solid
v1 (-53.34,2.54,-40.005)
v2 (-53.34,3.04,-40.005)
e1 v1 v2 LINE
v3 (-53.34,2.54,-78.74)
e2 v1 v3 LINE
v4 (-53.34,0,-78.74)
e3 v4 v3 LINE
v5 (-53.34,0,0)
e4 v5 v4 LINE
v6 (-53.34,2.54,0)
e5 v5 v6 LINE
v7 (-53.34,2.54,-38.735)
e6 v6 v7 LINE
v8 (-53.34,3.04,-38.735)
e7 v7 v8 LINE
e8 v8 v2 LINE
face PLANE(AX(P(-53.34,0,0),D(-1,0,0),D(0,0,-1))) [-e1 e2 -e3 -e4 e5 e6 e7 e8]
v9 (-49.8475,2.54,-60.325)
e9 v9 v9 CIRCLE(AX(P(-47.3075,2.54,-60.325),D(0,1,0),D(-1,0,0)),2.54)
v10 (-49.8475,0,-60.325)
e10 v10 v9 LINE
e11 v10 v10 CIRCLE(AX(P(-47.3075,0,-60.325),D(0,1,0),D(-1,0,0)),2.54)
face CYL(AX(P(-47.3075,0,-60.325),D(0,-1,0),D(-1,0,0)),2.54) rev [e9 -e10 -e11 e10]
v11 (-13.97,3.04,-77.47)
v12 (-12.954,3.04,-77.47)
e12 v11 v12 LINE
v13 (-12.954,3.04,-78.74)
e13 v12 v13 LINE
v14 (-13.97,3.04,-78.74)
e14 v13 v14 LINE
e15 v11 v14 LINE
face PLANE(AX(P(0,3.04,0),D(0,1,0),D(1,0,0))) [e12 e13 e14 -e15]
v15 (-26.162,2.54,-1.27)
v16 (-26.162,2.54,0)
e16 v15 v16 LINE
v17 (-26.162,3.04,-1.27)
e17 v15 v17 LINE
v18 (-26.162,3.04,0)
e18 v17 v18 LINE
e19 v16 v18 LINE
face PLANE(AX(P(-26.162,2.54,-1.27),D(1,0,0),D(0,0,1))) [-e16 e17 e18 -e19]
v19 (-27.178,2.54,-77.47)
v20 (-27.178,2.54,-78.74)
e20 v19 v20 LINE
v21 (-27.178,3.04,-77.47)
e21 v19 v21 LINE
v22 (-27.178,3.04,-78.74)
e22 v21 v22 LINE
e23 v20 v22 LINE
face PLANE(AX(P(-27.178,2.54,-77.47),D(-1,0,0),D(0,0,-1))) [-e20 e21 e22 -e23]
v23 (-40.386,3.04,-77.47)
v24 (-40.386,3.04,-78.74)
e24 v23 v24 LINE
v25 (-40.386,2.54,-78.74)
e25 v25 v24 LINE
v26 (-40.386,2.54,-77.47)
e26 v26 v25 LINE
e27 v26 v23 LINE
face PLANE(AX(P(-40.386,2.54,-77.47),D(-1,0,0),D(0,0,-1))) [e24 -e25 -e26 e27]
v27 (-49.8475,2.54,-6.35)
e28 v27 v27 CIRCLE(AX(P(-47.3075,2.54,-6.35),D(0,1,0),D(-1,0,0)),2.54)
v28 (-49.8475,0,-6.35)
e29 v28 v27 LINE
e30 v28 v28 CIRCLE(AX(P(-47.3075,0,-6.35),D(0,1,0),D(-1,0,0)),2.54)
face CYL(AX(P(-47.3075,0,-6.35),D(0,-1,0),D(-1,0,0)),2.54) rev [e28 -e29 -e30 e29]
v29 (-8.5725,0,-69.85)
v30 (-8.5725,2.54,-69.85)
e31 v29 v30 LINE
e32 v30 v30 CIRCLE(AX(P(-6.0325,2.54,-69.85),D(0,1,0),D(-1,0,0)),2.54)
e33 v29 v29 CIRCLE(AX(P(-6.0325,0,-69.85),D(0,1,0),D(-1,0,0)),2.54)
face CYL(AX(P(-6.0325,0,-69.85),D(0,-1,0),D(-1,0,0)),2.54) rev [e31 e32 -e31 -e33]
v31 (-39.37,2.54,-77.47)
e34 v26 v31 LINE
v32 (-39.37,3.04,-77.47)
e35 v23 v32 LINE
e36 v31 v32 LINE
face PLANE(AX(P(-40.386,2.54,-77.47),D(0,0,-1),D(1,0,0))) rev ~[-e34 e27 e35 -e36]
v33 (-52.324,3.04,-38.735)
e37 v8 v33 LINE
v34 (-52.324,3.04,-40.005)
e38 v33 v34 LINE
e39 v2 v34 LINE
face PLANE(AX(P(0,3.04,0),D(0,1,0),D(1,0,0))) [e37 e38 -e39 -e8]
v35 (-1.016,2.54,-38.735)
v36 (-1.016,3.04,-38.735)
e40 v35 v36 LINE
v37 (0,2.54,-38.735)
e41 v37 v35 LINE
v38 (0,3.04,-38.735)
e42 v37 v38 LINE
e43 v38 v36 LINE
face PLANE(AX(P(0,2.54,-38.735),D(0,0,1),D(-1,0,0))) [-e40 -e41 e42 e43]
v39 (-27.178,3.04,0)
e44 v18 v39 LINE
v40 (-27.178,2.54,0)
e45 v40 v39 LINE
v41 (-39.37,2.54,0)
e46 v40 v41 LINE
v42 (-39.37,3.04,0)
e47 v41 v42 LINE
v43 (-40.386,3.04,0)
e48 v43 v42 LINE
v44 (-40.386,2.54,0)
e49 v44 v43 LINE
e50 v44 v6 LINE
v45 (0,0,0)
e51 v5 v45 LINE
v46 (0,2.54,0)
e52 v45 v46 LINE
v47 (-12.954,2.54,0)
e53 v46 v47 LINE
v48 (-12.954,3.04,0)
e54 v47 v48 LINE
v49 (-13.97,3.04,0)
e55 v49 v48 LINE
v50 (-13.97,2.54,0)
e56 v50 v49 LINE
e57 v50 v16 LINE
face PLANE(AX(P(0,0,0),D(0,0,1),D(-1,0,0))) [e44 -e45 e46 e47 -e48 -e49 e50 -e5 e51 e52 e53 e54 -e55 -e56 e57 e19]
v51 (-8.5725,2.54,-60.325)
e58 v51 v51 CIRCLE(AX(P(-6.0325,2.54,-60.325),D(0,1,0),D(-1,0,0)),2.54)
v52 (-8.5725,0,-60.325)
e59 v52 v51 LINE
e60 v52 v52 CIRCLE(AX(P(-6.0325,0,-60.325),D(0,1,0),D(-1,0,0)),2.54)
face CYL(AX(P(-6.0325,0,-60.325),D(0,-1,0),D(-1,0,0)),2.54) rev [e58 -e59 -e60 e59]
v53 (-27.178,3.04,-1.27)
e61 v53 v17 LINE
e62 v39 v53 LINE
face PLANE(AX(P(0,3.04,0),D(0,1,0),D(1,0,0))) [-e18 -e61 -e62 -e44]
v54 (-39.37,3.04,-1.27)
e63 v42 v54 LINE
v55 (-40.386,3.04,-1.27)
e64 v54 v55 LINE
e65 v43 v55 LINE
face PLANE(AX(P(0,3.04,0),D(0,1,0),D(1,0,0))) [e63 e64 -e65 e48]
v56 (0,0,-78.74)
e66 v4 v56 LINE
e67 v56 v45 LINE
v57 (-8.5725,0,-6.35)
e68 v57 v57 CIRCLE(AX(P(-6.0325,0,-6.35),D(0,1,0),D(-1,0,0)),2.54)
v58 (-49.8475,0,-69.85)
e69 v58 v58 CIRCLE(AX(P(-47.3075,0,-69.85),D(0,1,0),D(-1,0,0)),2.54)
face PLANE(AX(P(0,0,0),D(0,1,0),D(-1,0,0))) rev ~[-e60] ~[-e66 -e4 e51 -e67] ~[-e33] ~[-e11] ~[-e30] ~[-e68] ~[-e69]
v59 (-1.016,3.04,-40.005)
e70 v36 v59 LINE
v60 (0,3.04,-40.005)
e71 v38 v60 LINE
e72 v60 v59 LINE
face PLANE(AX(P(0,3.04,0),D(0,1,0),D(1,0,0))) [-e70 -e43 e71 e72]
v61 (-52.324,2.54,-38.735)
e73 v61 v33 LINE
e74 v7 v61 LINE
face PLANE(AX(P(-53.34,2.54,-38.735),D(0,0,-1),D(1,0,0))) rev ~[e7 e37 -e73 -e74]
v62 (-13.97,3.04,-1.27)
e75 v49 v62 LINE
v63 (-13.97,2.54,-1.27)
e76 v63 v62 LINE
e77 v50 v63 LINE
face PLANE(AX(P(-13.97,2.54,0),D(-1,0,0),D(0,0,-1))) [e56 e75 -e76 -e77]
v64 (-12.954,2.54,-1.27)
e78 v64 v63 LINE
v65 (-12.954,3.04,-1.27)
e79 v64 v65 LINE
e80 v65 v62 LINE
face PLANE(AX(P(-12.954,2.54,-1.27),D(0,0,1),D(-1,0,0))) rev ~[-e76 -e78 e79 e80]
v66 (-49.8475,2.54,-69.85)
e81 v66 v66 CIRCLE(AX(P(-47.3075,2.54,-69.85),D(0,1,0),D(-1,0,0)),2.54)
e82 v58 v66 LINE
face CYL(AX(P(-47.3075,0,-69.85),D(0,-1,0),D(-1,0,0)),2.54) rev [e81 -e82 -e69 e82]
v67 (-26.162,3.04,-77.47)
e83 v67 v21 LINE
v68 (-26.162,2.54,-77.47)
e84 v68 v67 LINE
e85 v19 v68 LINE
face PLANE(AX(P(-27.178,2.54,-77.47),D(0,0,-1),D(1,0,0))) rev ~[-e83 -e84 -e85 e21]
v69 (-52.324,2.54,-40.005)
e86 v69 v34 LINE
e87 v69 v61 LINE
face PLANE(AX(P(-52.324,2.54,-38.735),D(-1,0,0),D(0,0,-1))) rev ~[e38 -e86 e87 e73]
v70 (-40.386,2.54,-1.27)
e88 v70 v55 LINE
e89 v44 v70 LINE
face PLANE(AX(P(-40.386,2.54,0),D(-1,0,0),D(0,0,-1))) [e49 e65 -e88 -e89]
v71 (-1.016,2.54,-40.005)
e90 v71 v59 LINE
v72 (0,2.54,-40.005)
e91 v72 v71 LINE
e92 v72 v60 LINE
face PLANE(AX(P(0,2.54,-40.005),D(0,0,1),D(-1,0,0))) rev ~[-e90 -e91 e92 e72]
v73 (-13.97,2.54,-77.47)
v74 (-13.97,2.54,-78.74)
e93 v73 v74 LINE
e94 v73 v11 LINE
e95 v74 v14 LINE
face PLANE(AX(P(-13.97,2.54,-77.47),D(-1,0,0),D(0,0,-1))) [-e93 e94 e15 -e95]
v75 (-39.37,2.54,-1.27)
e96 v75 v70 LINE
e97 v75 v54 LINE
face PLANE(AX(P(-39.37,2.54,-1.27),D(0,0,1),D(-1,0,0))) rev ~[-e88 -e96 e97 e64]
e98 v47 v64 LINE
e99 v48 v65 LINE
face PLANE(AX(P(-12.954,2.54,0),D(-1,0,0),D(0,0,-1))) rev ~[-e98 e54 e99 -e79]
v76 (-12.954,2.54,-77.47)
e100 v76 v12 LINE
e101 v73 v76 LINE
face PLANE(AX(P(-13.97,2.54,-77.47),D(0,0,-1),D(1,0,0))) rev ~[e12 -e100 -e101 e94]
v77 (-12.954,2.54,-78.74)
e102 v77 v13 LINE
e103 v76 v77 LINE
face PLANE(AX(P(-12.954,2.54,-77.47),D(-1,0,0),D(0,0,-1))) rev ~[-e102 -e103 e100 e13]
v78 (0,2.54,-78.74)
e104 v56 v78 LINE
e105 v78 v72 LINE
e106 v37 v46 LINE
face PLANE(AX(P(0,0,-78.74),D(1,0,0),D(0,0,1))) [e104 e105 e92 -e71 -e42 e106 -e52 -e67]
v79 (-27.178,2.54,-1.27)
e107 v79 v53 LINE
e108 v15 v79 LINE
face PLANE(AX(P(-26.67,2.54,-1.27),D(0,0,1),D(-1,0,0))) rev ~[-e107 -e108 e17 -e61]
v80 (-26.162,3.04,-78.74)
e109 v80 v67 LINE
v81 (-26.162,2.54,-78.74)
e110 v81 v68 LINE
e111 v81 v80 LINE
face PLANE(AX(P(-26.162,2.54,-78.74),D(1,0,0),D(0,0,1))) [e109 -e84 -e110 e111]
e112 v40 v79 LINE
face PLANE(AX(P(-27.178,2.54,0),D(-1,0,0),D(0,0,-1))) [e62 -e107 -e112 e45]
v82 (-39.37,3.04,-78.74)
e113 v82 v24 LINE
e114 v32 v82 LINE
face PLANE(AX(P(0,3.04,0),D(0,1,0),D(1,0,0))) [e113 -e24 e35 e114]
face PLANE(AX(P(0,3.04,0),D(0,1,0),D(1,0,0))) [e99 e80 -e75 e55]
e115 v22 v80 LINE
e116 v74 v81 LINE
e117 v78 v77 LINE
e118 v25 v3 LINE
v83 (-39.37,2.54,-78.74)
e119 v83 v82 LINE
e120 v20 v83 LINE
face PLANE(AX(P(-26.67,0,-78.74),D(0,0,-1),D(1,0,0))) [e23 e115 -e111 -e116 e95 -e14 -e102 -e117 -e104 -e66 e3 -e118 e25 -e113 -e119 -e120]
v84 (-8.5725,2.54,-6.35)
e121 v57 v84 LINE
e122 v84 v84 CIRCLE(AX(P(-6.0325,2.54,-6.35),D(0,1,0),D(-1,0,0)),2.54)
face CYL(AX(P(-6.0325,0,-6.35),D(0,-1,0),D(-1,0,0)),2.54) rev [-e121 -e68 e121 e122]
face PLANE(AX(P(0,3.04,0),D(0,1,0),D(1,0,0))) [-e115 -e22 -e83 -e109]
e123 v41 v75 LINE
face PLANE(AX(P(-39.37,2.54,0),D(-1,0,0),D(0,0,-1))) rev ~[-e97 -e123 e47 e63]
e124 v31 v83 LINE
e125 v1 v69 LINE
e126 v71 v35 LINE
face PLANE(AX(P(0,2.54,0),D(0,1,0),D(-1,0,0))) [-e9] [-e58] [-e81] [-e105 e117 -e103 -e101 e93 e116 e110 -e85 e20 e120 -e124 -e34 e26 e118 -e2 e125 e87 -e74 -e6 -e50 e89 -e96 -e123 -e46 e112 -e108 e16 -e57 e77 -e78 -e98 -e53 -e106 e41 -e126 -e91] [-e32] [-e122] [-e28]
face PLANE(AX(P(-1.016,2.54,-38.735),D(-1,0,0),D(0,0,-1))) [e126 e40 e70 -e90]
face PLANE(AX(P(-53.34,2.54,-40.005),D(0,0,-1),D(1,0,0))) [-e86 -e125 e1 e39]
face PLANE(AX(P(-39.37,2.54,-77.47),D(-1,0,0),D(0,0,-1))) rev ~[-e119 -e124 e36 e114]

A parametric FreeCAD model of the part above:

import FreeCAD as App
import Part
import Sketcher
Q = App.Units.Quantity


def add_polygon(sketch, points):
    """Adds a closed chain of lines whose ends are joined by coincident constraints."""
    first, n = sketch.GeometryCount, len(points)
    for a, b in zip(points, points[1:] + points[:1]):
        sketch.addGeometry(Part.LineSegment(App.Vector(*a, 0), App.Vector(*b, 0)), False)
    for i in range(n):
        sketch.addConstraint(Sketcher.Constraint("Coincident", first + i, 2, first + (i + 1) % n, 1))

doc = App.newDocument("Part")
body = doc.addObject("PartDesign::Body", "Body")

# Sketch on XZ plane
sketch1 = doc.addObject("Sketcher::SketchObject", "Sketch")
body.addObject(sketch1)
sketch1.AttachmentSupport = (doc.XZ_Plane, [""])
sketch1.MapMode = "FlatFace"
add_polygon(sketch1, [(0, 0), (0, -78.7), (-53.3, -78.7), (-53.3, 0)])  # lines 0-3
sketch1.addGeometry(Part.Circle(App.Vector(-6, -69.8, 0), App.Vector(0, 0, 1), 2.5), False)  # 4
sketch1.addGeometry(Part.Circle(App.Vector(-6, -60.3, 0), App.Vector(0, 0, 1), 2.5), False)  # 5
sketch1.addGeometry(Part.Circle(App.Vector(-6, -6.3, 0), App.Vector(0, 0, 1), 2.5), False)  # 6
sketch1.addGeometry(Part.Circle(App.Vector(-47.3, -6.3, 0), App.Vector(0, 0, 1), 2.5), False)  # 7
sketch1.addGeometry(Part.Circle(App.Vector(-47.3, -69.8, 0), App.Vector(0, 0, 1), 2.5), False)  # 8
sketch1.addGeometry(Part.Circle(App.Vector(-47.3, -60.3, 0), App.Vector(0, 0, 1), 2.5), False)  # 9
sketch1.addConstraint([
    Sketcher.Constraint("Vertical", 0),
    Sketcher.Constraint("Horizontal", 1),
    Sketcher.Constraint("Vertical", 2),
    Sketcher.Constraint("Horizontal", 3),
    Sketcher.Constraint("Coincident", 3, 2, -1, 1),
    Sketcher.Constraint("Equal", 4, 5),
    Sketcher.Constraint("Equal", 5, 6),
    Sketcher.Constraint("Equal", 6, 7),
    Sketcher.Constraint("Equal", 7, 8),
    Sketcher.Constraint("Equal", 8, 9),
    Sketcher.Constraint("Horizontal", 6, 3, 7, 3),
    Sketcher.Constraint("Horizontal", 4, 3, 8, 3),
    Sketcher.Constraint("Horizontal", 5, 3, 9, 3),
    Sketcher.Constraint("Vertical", 4, 3, 5, 3),
    Sketcher.Constraint("Vertical", 5, 3, 6, 3),
    Sketcher.Constraint("Vertical", 7, 3, 8, 3),
    Sketcher.Constraint("Vertical", 8, 3, 9, 3),
    Sketcher.Constraint("Diameter", 4, Q("0.2 in")),
    Sketcher.Constraint("DistanceX", 1, 2, 1, 1, Q("2.1 in")),
    Sketcher.Constraint("DistanceY", 0, 2, 0, 1, Q("3.1 in")),
    Sketcher.Constraint("DistanceY", 4, 3, 6, 3, Q("2.5 in")),
    Sketcher.Constraint("DistanceY", 6, 3, -1, 1, Q("0.25 in")),
    Sketcher.Constraint("DistanceY", 5, 3, 6, 3, Q("2.125 in")),
    Sketcher.Constraint("DistanceX", 7, 3, 6, 3, Q("1.625 in")),
    Sketcher.Constraint("DistanceX", 4, 3, -1, 1, Q("0.2375 in")),
])
pad1 = doc.addObject("PartDesign::Pad", "Pad")
body.addObject(pad1)
pad1.Profile = sketch1
pad1.Length = Q("0.1 in")
pad1.Reversed = True

# Sketch on XZ plane
sketch2 = doc.addObject("Sketcher::SketchObject", "Sketch001")
body.addObject(sketch2)
sketch2.AttachmentSupport = (doc.XZ_Plane, [""])
sketch2.MapMode = "FlatFace"
sketch2.AttachmentOffset = App.Placement(App.Vector(0, 0, -0.1 * 25.4), App.Rotation())
add_polygon(sketch2, [(-53.3, -38.7), (-52.3, -38.7), (-52.3, -40), (-53.3, -40)])  # lines 0-3
add_polygon(sketch2, [(-40.4, -1.3), (-40.4, 0), (-39.4, 0), (-39.4, -1.3)])  # lines 4-7
add_polygon(sketch2, [(-27.2, -1.3), (-27.2, 0), (-26.2, 0), (-26.2, -1.3)])  # lines 8-11
add_polygon(sketch2, [(-40.4, -78.7), (-40.4, -77.5), (-39.4, -77.5), (-39.4, -78.7)])  # lines 12-15
add_polygon(sketch2, [(-14, -1.3), (-14, 0), (-13, 0), (-13, -1.3)])  # lines 16-19
add_polygon(sketch2, [(-27.2, -78.7), (-27.2, -77.5), (-26.2, -77.5), (-26.2, -78.7)])  # lines 20-23
add_polygon(sketch2, [(-1, -38.7), (0, -38.7), (0, -40), (-1, -40)])  # lines 24-27
add_polygon(sketch2, [(-14, -78.7), (-14, -77.5), (-13, -77.5), (-13, -78.7)])  # lines 28-31
sketch2.addConstraint([
    Sketcher.Constraint("Horizontal", 0),
    Sketcher.Constraint("Vertical", 1),
    Sketcher.Constraint("Horizontal", 2),
    Sketcher.Constraint("Vertical", 3),
    Sketcher.Constraint("Vertical", 4),
    Sketcher.Constraint("Horizontal", 5),
    Sketcher.Constraint("Vertical", 6),
    Sketcher.Constraint("Horizontal", 7),
    Sketcher.Constraint("Vertical", 8),
    Sketcher.Constraint("Horizontal", 9),
    Sketcher.Constraint("Vertical", 10),
    Sketcher.Constraint("Horizontal", 11),
    Sketcher.Constraint("Vertical", 12),
    Sketcher.Constraint("Horizontal", 13),
    Sketcher.Constraint("Vertical", 14),
    Sketcher.Constraint("Horizontal", 15),
    Sketcher.Constraint("Vertical", 16),
    Sketcher.Constraint("Horizontal", 17),
    Sketcher.Constraint("Vertical", 18),
    Sketcher.Constraint("Horizontal", 19),
    Sketcher.Constraint("Vertical", 20),
    Sketcher.Constraint("Horizontal", 21),
    Sketcher.Constraint("Vertical", 22),
    Sketcher.Constraint("Horizontal", 23),
    Sketcher.Constraint("Horizontal", 24),
    Sketcher.Constraint("Vertical", 25),
    Sketcher.Constraint("Horizontal", 26),
    Sketcher.Constraint("Vertical", 27),
    Sketcher.Constraint("Vertical", 28),
    Sketcher.Constraint("Horizontal", 29),
    Sketcher.Constraint("Vertical", 30),
    Sketcher.Constraint("Horizontal", 31),
    Sketcher.Constraint("PointOnObject", 4, 2, -1),
    Sketcher.Constraint("PointOnObject", 8, 2, -1),
    Sketcher.Constraint("PointOnObject", 16, 2, -1),
    Sketcher.Constraint("PointOnObject", 24, 2, -2),
    Sketcher.Constraint("Horizontal", 7, 2, 10, 2),
    Sketcher.Constraint("Horizontal", 11, 2, 18, 2),
    Sketcher.Constraint("Horizontal", 13, 2, 20, 2),
    Sketcher.Constraint("Horizontal", 15, 2, 22, 2),
    Sketcher.Constraint("Horizontal", 3, 2, 24, 2),
    Sketcher.Constraint("Horizontal", 2, 2, 25, 2),
    Sketcher.Constraint("Horizontal", 21, 2, 28, 2),
    Sketcher.Constraint("Horizontal", 23, 2, 30, 2),
    Sketcher.Constraint("Vertical", 7, 2, 12, 2),
    Sketcher.Constraint("Vertical", 6, 2, 13, 2),
    Sketcher.Constraint("Vertical", 11, 2, 20, 2),
    Sketcher.Constraint("Vertical", 10, 2, 21, 2),
    Sketcher.Constraint("Vertical", 19, 2, 28, 2),
    Sketcher.Constraint("Vertical", 18, 2, 29, 2),
    Sketcher.Constraint("Equal", 2, 5),
    Sketcher.Constraint("Equal", 7, 9),
    Sketcher.Constraint("Equal", 15, 17),
    Sketcher.Constraint("Equal", 23, 24),
    Sketcher.Constraint("Equal", 3, 4),
    Sketcher.Constraint("Equal", 10, 12),
    Sketcher.Constraint("DistanceX", 0, 1, 0, 2, Q("0.04 in")),
    Sketcher.Constraint("DistanceY", 1, 2, 1, 1, Q("0.05 in")),
    Sketcher.Constraint("DistanceY", 12, 2, 7, 2, Q("3 in")),
    Sketcher.Constraint("DistanceX", 5, 2, 16, 2, Q("1 in")),
    Sketcher.Constraint("DistanceX", 2, 2, -1, 1, Q("2.1 in")),
    Sketcher.Constraint("DistanceX", 4, 2, -1, 1, Q("1.59 in")),
    Sketcher.Constraint("DistanceX", 8, 2, -1, 1, Q("1.07 in")),
    Sketcher.Constraint("DistanceY", 0, 2, -1, 1, Q("1.525 in")),
])
pad2 = doc.addObject("PartDesign::Pad", "Pad001")
body.addObject(pad2)
pad2.Profile = sketch2
pad2.Length = 0.5
pad2.Reversed = True

doc.recompute()
